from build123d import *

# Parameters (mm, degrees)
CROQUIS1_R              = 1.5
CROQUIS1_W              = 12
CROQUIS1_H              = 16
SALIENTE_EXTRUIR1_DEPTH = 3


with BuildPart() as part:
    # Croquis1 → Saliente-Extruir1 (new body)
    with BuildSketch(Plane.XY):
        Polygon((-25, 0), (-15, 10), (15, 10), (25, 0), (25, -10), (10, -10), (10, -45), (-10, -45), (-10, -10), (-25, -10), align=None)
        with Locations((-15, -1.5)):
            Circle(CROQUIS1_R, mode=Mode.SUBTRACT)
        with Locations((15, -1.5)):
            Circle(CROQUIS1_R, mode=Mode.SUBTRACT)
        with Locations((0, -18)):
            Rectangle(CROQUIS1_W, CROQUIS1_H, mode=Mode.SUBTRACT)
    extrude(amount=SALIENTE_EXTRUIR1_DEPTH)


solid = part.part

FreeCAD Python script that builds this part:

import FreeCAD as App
import Part
import Sketcher


def add_polygon(sketch, points):
    """Adds a closed chain of lines whose ends are joined by coincident constraints."""
    first, n = sketch.GeometryCount, len(points)
    for a, b in zip(points, points[1:] + points[:1]):
        sketch.addGeometry(Part.LineSegment(App.Vector(*a, 0), App.Vector(*b, 0)), False)
    for i in range(n):
        sketch.addConstraint(Sketcher.Constraint("Coincident", first + i, 2, first + (i + 1) % n, 1))

doc = App.newDocument("Part")
body = doc.addObject("PartDesign::Body", "Body")

sketch1 = body.newObject("Sketcher::SketchObject", "Sketch")
sketch1.AttachmentSupport = (doc.getObject("XY_Plane"), [""])
sketch1.MapMode = "FlatFace"
add_polygon(sketch1, [(-15, 10), (-25, 0), (-25, -10), (-10, -10), (-10, -45), (10, -45), (10, -10), (25, -10), (25, 0), (15, 10)])
add_polygon(sketch1, [(-6, -26), (-6, -10), (6, -10), (6, -26)])
sketch1.addGeometry(Part.Circle(App.Vector(15, -1.5, 0), App.Vector(0, 0, 1), 1.5), False)
sketch1.addGeometry(Part.Circle(App.Vector(-15, -1.5, 0), App.Vector(0, 0, 1), 1.5), False)
sketch1.addConstraint([
    Sketcher.Constraint("Vertical", 1),
    Sketcher.Constraint("Horizontal", 2),
    Sketcher.Constraint("Vertical", 3),
    Sketcher.Constraint("Horizontal", 4),
    Sketcher.Constraint("Vertical", 5),
    Sketcher.Constraint("Horizontal", 6),
    Sketcher.Constraint("Vertical", 7),
    Sketcher.Constraint("Horizontal", 9),
    Sketcher.Constraint("Vertical", 10),
    Sketcher.Constraint("Horizontal", 11),
    Sketcher.Constraint("Vertical", 12),
    Sketcher.Constraint("Horizontal", 13),
    Sketcher.Constraint("Equal", 14, 15),
    Sketcher.Constraint("Symmetric", 0, 2, 7, 2, -1, 1),
    Sketcher.Constraint("Symmetric", 14, 3, 15, 3, -2),
    Sketcher.Constraint("Symmetric", 2, 2, 5, 2, -2),
    Sketcher.Constraint("PointOnObject", 0, 2, -1),
    Sketcher.Constraint("Perpendicular", 0, 8),
    Sketcher.Constraint("Horizontal", 6, 2, 10, 2),
    Sketcher.Constraint("Vertical", 14, 3, 8, 2),
    Sketcher.Constraint("Vertical", 15, 3, 9, 2),
    Sketcher.Constraint("Diameter", 14, 3.0),
    Sketcher.Constraint("DistanceX", 2, 1, 2, 2, 15.0),
    Sketcher.Constraint("DistanceX", 4, 1, 4, 2, 20.0),
    Sketcher.Constraint("DistanceX", 9, 2, 9, 1, 30.0),
    Sketcher.Constraint("DistanceX", 11, 1, 11, 2, 12.0),
    Sketcher.Constraint("DistanceY", 1, 2, 1, 1, 10.0),
    Sketcher.Constraint("DistanceY", 3, 2, 3, 1, 35.0),
    Sketcher.Constraint("DistanceY", 10, 1, 10, 2, 16.0),
    Sketcher.Constraint("DistanceX", 10, 2, -1, 1, 6.0),
    Sketcher.Constraint("DistanceY", 14, 3, -1, 1, 1.5),
])
pad1 = body.newObject("PartDesign::Pad", "Pad")
pad1.Profile = sketch1
pad1.Length = 3

doc.recompute()
